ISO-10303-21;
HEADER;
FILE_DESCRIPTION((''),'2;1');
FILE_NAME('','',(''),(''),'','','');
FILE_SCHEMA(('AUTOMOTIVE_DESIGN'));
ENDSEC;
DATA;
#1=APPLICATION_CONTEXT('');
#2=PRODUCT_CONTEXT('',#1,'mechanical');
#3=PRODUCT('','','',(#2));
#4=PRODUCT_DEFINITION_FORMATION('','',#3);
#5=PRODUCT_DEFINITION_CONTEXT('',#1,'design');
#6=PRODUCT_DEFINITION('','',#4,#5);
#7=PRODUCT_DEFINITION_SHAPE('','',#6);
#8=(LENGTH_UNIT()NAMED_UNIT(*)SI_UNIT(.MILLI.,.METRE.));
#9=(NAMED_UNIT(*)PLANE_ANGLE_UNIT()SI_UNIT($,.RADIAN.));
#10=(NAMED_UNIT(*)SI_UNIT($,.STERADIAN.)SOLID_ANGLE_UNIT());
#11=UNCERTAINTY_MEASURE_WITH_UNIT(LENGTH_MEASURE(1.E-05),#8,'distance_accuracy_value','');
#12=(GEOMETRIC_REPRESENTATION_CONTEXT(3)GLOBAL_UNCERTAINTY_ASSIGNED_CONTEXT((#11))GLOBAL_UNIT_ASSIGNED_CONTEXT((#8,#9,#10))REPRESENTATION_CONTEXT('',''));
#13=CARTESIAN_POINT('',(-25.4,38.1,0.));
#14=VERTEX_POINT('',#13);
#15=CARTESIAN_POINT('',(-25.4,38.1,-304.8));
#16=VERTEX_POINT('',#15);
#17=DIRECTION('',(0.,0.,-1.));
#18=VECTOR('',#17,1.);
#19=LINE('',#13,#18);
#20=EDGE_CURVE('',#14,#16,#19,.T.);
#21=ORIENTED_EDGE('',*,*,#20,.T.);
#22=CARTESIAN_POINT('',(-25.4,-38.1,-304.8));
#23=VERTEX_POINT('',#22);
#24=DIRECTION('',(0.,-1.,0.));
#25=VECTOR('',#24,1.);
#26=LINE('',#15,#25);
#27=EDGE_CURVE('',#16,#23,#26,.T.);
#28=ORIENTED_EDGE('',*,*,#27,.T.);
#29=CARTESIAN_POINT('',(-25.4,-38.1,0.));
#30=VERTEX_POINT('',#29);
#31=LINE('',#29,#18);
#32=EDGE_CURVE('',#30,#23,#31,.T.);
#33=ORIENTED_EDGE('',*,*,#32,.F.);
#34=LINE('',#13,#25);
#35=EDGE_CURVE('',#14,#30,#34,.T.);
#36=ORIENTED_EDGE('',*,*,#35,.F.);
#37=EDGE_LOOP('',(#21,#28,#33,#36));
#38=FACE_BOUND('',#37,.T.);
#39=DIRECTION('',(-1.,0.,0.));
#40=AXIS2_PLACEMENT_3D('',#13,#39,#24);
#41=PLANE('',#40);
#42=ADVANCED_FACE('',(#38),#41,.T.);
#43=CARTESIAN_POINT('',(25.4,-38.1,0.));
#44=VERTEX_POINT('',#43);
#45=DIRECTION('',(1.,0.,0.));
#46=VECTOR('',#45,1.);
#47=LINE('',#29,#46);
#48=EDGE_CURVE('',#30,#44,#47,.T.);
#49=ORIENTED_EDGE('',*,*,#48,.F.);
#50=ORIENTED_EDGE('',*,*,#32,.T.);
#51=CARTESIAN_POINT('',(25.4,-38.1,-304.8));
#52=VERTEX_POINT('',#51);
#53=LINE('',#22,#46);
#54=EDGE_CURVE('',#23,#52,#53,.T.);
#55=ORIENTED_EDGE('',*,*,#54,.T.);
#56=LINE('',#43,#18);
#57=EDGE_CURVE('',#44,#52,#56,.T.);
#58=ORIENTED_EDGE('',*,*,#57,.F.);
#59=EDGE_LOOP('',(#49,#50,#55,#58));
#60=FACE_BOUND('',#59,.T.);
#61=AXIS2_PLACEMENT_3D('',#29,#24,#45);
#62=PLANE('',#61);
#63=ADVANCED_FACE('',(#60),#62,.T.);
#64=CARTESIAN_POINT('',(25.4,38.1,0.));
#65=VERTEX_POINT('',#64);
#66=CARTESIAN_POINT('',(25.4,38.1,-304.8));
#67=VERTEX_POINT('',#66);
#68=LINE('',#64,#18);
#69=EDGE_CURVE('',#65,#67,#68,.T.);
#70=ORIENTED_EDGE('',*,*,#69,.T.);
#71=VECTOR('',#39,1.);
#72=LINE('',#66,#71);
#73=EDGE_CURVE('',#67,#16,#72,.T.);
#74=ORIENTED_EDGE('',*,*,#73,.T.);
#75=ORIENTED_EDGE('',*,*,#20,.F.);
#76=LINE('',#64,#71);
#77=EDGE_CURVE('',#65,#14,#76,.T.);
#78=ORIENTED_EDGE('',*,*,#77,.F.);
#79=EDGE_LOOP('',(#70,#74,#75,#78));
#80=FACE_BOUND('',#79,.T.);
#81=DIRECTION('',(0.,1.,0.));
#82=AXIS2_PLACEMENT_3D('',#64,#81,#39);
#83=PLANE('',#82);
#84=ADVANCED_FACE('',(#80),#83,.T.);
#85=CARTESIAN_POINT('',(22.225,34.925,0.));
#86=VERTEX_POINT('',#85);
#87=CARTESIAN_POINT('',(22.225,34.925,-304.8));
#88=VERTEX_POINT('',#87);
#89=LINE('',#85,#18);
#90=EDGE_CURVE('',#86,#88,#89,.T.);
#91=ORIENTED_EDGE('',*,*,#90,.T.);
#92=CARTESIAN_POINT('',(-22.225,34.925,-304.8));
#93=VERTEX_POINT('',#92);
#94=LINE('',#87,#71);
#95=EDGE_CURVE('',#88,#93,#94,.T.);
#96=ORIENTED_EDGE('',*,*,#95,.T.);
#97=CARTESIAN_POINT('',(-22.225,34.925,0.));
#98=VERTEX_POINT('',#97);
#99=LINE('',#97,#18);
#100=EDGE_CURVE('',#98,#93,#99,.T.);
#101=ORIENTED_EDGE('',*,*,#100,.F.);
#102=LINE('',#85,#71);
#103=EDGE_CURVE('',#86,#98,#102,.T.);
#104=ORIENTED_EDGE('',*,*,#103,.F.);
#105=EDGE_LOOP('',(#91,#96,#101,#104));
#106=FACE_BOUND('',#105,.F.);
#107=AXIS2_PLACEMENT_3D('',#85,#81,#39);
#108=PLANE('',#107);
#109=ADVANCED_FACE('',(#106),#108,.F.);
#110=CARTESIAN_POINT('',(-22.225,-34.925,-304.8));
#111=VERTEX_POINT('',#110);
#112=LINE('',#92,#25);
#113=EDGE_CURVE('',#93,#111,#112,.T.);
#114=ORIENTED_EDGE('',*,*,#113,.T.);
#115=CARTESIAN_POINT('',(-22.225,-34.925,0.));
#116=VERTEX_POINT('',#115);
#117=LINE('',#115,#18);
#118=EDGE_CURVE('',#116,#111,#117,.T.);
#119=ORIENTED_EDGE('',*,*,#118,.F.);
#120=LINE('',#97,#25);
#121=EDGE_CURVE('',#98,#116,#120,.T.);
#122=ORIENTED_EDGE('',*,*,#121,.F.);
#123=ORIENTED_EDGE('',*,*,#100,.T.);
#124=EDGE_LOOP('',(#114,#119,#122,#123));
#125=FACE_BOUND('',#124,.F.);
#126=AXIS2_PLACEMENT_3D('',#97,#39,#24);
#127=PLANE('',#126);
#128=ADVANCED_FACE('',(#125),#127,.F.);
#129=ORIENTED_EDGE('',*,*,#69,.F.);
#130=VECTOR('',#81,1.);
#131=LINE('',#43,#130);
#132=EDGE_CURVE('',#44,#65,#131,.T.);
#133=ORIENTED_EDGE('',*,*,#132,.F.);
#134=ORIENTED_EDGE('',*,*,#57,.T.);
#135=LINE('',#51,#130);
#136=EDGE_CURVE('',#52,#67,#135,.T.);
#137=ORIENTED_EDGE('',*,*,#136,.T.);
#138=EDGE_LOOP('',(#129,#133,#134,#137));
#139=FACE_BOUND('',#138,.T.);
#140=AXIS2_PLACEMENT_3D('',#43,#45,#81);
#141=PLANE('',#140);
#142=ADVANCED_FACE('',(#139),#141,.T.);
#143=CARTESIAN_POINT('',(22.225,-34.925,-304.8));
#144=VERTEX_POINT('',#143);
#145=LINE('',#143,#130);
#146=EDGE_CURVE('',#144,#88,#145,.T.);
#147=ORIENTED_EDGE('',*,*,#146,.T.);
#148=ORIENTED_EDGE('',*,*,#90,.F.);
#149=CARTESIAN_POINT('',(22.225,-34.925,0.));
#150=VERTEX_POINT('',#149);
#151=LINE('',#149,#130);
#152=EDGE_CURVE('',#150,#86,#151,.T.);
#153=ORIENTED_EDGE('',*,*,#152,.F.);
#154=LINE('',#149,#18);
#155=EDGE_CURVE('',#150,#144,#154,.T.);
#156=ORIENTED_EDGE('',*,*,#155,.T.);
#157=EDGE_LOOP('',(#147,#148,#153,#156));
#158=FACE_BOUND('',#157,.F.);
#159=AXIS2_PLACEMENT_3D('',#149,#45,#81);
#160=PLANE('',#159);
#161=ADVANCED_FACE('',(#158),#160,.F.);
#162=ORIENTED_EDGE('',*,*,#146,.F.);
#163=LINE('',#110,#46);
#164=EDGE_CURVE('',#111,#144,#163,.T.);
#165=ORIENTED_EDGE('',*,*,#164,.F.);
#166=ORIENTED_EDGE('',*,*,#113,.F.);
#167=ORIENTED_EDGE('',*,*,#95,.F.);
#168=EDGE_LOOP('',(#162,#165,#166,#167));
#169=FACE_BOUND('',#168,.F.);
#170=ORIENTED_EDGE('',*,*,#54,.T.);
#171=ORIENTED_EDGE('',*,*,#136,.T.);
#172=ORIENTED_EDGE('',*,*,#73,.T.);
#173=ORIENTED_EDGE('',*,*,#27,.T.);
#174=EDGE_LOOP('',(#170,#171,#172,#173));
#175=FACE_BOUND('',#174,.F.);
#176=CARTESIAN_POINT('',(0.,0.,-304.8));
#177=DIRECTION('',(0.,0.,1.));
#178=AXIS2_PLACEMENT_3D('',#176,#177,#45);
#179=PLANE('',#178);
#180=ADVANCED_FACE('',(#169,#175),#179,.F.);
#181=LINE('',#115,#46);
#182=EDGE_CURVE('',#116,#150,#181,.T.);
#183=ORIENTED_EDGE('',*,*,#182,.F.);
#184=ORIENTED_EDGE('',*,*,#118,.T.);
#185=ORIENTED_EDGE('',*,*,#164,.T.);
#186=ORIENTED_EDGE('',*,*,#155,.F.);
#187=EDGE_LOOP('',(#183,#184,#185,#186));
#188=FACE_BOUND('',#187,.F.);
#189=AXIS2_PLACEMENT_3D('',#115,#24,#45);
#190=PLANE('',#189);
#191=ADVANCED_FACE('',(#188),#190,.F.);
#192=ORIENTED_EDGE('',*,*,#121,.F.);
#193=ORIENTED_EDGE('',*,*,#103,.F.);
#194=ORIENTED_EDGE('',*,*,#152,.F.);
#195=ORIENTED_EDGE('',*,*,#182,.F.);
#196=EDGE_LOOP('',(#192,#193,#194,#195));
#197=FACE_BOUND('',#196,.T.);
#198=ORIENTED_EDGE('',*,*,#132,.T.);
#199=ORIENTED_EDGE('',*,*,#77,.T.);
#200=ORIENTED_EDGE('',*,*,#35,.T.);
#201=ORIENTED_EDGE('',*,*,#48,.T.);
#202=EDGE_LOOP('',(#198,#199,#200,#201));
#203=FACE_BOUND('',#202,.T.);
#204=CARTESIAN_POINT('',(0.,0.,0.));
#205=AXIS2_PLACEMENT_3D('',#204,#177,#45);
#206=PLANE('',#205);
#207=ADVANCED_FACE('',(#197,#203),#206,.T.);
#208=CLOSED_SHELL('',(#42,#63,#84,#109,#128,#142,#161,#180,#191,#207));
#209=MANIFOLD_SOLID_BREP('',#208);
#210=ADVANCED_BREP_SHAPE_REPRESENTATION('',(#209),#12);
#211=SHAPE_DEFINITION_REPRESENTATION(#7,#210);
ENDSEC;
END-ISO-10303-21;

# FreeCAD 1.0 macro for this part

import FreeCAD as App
import Part
import Sketcher
Q = App.Units.Quantity


def add_polygon(sketch, points):
    """Adds a closed chain of lines whose ends are joined by coincident constraints."""
    first, n = sketch.GeometryCount, len(points)
    for a, b in zip(points, points[1:] + points[:1]):
        sketch.addGeometry(Part.LineSegment(App.Vector(*a, 0), App.Vector(*b, 0)), False)
    for i in range(n):
        sketch.addConstraint(Sketcher.Constraint("Coincident", first + i, 2, first + (i + 1) % n, 1))

doc = App.newDocument("Part")
body = doc.addObject("PartDesign::Body", "Body")

# Sketch on XY plane
sketch1 = body.newObject("Sketcher::SketchObject", "Sketch")
sketch1.AttachmentSupport = (doc.getObject("XY_Plane"), [""])
sketch1.MapMode = "FlatFace"
add_polygon(sketch1, [(-25, 38), (-25, -38), (25, -38), (25, 38)])  # lines 0-3
add_polygon(sketch1, [(22, -35), (-22, -35), (-22, 35), (22, 35)])  # lines 4-7
sketch1.addConstraint([
    Sketcher.Constraint("Vertical", 0),
    Sketcher.Constraint("Horizontal", 1),
    Sketcher.Constraint("Vertical", 2),
    Sketcher.Constraint("Horizontal", 3),
    Sketcher.Constraint("Horizontal", 4),
    Sketcher.Constraint("Vertical", 5),
    Sketcher.Constraint("Horizontal", 6),
    Sketcher.Constraint("Vertical", 7),
    Sketcher.Constraint("Symmetric", 0, 2, 2, 2, -1, 1),
    Sketcher.Constraint("Symmetric", 4, 2, 6, 2, -1, 1),
    Sketcher.Constraint("DistanceX", 1, 1, 1, 2, Q("2 in")),
    Sketcher.Constraint("DistanceY", 0, 2, 0, 1, Q("3 in")),
    Sketcher.Constraint("DistanceX", 0, 2, 4, 2, Q("0.125 in")),
    Sketcher.Constraint("DistanceY", 0, 2, 4, 2, Q("0.125 in")),
])
pad1 = body.newObject("PartDesign::Pad", "Pad")
pad1.Profile = sketch1
pad1.Length = Q("12 in")
pad1.Reversed = True

doc.recompute()
